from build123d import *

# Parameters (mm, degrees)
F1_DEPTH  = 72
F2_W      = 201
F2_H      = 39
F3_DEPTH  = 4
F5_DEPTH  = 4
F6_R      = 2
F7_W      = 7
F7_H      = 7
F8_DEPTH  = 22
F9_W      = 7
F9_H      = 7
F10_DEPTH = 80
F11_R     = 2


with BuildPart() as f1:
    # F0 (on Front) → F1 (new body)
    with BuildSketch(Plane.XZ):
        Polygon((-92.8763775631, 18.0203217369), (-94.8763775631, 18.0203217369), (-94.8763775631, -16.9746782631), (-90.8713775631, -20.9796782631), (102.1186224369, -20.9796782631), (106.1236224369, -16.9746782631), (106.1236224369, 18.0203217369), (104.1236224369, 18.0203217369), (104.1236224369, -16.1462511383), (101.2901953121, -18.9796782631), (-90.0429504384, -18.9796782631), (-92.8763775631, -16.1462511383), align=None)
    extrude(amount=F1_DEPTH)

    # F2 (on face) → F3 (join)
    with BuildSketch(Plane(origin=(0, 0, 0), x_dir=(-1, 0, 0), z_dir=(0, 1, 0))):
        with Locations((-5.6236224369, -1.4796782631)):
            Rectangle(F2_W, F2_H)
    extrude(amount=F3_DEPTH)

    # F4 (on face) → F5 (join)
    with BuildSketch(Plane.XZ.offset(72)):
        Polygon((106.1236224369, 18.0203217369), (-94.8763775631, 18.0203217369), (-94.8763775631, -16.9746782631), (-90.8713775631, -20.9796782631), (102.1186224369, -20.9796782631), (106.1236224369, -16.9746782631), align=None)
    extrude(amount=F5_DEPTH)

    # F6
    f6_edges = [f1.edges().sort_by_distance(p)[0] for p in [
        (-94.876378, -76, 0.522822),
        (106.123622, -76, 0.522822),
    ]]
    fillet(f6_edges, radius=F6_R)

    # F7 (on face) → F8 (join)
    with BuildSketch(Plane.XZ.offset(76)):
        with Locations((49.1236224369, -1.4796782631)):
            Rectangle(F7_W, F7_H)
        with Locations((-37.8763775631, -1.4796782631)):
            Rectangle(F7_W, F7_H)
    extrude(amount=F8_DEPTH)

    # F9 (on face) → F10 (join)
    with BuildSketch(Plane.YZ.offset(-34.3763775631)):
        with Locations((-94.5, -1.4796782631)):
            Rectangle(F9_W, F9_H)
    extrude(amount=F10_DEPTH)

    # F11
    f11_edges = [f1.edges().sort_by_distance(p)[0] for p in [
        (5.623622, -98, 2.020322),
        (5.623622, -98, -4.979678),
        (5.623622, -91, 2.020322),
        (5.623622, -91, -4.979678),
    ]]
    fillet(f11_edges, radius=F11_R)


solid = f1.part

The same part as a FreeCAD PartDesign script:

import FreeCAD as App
import Part
import Sketcher
from FreeCAD import Vector
Q = App.Units.Quantity


def edges_at(feature, points):
    """Names of the edges that pass closest to the given points."""
    edges = feature.Shape.Edges
    near = lambda p: min(range(len(edges)), key=lambda i: edges[i].distToShape(Part.Vertex(*p))[0])
    return sorted({f"Edge{near(p) + 1}" for p in points})

doc = App.newDocument("Part")
body = doc.addObject("PartDesign::Body", "Body")

sketch1 = body.newObject("Sketcher::SketchObject", "Sketch")
sketch1.AttachmentSupport = (doc.getObject("XZ_Plane"), [""])
sketch1.MapMode = "FlatFace"
sketch1.addGeometry([
    Part.LineSegment(Vector(-92.9, 18, 0), Vector(-94.9, 18, 0)),
    Part.LineSegment(Vector(-94.9, 18, 0), Vector(-94.9, -17, 0)),
    Part.LineSegment(Vector(-94.9, -17, 0), Vector(-90.9, -21, 0)),
    Part.LineSegment(Vector(-90.9, -21, 0), Vector(102.1, -21, 0)),
    Part.LineSegment(Vector(102.1, -21, 0), Vector(106.1, -17, 0)),
    Part.LineSegment(Vector(106.1, -17, 0), Vector(106.1, 18, 0)),
    Part.LineSegment(Vector(106.1, 18, 0), Vector(104.1, 18, 0)),
    Part.LineSegment(Vector(104.1, 18, 0), Vector(104.1, -16.1, 0)),
    Part.LineSegment(Vector(104.1, -16.1, 0), Vector(101.3, -19, 0)),
    Part.LineSegment(Vector(101.3, -19, 0), Vector(-90, -19, 0)),
    Part.LineSegment(Vector(-90, -19, 0), Vector(-92.9, -16.1, 0)),
    Part.LineSegment(Vector(-92.9, -16.1, 0), Vector(-92.9, 18, 0)),
], False)
sketch1.addConstraint([
    Sketcher.Constraint("Coincident", 0, 2, 1, 1),
    Sketcher.Constraint("Coincident", 1, 2, 2, 1),
    Sketcher.Constraint("Coincident", 2, 2, 3, 1),
    Sketcher.Constraint("Coincident", 3, 2, 4, 1),
    Sketcher.Constraint("Coincident", 4, 2, 5, 1),
    Sketcher.Constraint("Coincident", 5, 2, 6, 1),
    Sketcher.Constraint("Coincident", 6, 2, 7, 1),
    Sketcher.Constraint("Coincident", 7, 2, 8, 1),
    Sketcher.Constraint("Coincident", 8, 2, 9, 1),
    Sketcher.Constraint("Coincident", 9, 2, 10, 1),
    Sketcher.Constraint("Coincident", 10, 2, 11, 1),
    Sketcher.Constraint("Coincident", 11, 2, 0, 1),
    Sketcher.Constraint("Horizontal", 0),
    Sketcher.Constraint("Vertical", 1),
    Sketcher.Constraint("Horizontal", 3),
    Sketcher.Constraint("Vertical", 5),
    Sketcher.Constraint("Horizontal", 6),
    Sketcher.Constraint("Vertical", 7),
    Sketcher.Constraint("Horizontal", 9),
    Sketcher.Constraint("Vertical", 11),
    Sketcher.Constraint("Perpendicular", 2, 4),
    Sketcher.Constraint("Parallel", 4, 8),
    Sketcher.Constraint("Perpendicular", 8, 10),
    Sketcher.Constraint("Horizontal", 1, 2, 4, 2),
    Sketcher.Constraint("Horizontal", 0, 2, 5, 2),
    Sketcher.Constraint("Horizontal", 7, 2, 10, 2),
    Sketcher.Constraint("Equal", 0, 6),
    Sketcher.Constraint("Equal", 2, 4),
    Sketcher.Constraint("DistanceX", 0, 2, 0, 1, Q("2 mm")),
    Sketcher.Constraint("DistanceY", 2, 2, 0, 2, Q("39 mm")),
    Sketcher.Constraint("DistanceX", 1, 2, 4, 2, Q("201 mm")),
    Sketcher.Constraint("DistanceY", 3, 2, 8, 2, Q("2 mm")),
    Sketcher.Constraint("DistanceX", 3, 1, 3, 2, Q("192.99 mm")),
    Sketcher.Constraint("Distance", 8, Q("4.007071 mm")),
    Sketcher.Constraint("DistanceY", -1, 1, 0, 2, Q("18.020322 mm")),
    Sketcher.Constraint("DistanceX", 9, 2, -1, 1, Q("90.04295 mm")),
])
pad1 = body.newObject("PartDesign::Pad", "Pad")
pad1.Profile = sketch1
pad1.Length = 72

sketch2 = body.newObject("Sketcher::SketchObject", "Sketch001")
sketch2.AttachmentSupport = (doc.getObject("XZ_Plane"), [""])
sketch2.MapMode = "FlatFace"
sketch2.addGeometry([
    Part.LineSegment(Vector(106, 18, 0), Vector(106, -21, 0)),
    Part.LineSegment(Vector(106, -21, 0), Vector(-95, -21, 0)),
    Part.LineSegment(Vector(-95, -21, 0), Vector(-95, 18, 0)),
    Part.LineSegment(Vector(-95, 18, 0), Vector(106, 18, 0)),
], False)
sketch2.addConstraint([
    Sketcher.Constraint("Coincident", 0, 2, 1, 1),
    Sketcher.Constraint("Coincident", 1, 2, 2, 1),
    Sketcher.Constraint("Coincident", 2, 2, 3, 1),
    Sketcher.Constraint("Coincident", 3, 2, 0, 1),
    Sketcher.Constraint("Vertical", 0),
    Sketcher.Constraint("Horizontal", 1),
    Sketcher.Constraint("Vertical", 2),
    Sketcher.Constraint("Horizontal", 3),
    Sketcher.Constraint("DistanceX", 1, 2, 1, 1, Q("201 mm")),
    Sketcher.Constraint("DistanceY", 0, 2, 0, 1, Q("39 mm")),
    Sketcher.Constraint("DistanceY", 0, 2, -1, 1, Q("20.979678 mm")),
    Sketcher.Constraint("DistanceX", -1, 1, 0, 2, Q("106.123622 mm")),
])
pad2 = body.newObject("PartDesign::Pad", "Pad001")
pad2.Profile = sketch2
pad2.Length = 4
pad2.Reversed = True

sketch3 = body.newObject("Sketcher::SketchObject", "Sketch002")
sketch3.AttachmentSupport = (doc.getObject("XZ_Plane"), [""])
sketch3.MapMode = "FlatFace"
sketch3.AttachmentOffset = App.Placement(Vector(0, 0, 72), App.Rotation())
sketch3.addGeometry([
    Part.LineSegment(Vector(106, 18, 0), Vector(-95, 18, 0)),
    Part.LineSegment(Vector(-95, 18, 0), Vector(-95, -17, 0)),
    Part.LineSegment(Vector(-95, -17, 0), Vector(-91, -21, 0)),
    Part.LineSegment(Vector(-91, -21, 0), Vector(102, -21, 0)),
    Part.LineSegment(Vector(102, -21, 0), Vector(106, -17, 0)),
    Part.LineSegment(Vector(106, -17, 0), Vector(106, 18, 0)),
], False)
sketch3.addConstraint([
    Sketcher.Constraint("Coincident", 0, 2, 1, 1),
    Sketcher.Constraint("Coincident", 1, 2, 2, 1),
    Sketcher.Constraint("Coincident", 2, 2, 3, 1),
    Sketcher.Constraint("Coincident", 3, 2, 4, 1),
    Sketcher.Constraint("Coincident", 4, 2, 5, 1),
    Sketcher.Constraint("Coincident", 5, 2, 0, 1),
    Sketcher.Constraint("Horizontal", 0),
    Sketcher.Constraint("Vertical", 1),
    Sketcher.Constraint("Horizontal", 3),
    Sketcher.Constraint("Vertical", 5),
    Sketcher.Constraint("Perpendicular", 2, 4),
    Sketcher.Constraint("Horizontal", 1, 2, 4, 2),
    Sketcher.Constraint("Equal", 2, 4),
    Sketcher.Constraint("DistanceX", 0, 2, 0, 1, Q("201 mm")),
    Sketcher.Constraint("DistanceY", 2, 2, 0, 2, Q("39 mm")),
    Sketcher.Constraint("DistanceX", 3, 1, 3, 2, Q("192.99 mm")),
    Sketcher.Constraint("DistanceY", -1, 1, 0, 2, Q("18.020322 mm")),
    Sketcher.Constraint("DistanceX", 0, 2, -1, 1, Q("94.876378 mm")),
])
pad3 = body.newObject("PartDesign::Pad", "Pad002")
pad3.Profile = sketch3
pad3.Length = 4
doc.recompute()

fillet = body.newObject("PartDesign::Fillet", "Fillet")
fillet.Base = (pad3, edges_at(pad3, [(-94.876, -76, 0.523), (106.124, -76, 0.523)]))
fillet.Radius = 2

sketch4 = body.newObject("Sketcher::SketchObject", "Sketch003")
sketch4.AttachmentSupport = (doc.getObject("XZ_Plane"), [""])
sketch4.MapMode = "FlatFace"
sketch4.AttachmentOffset = App.Placement(Vector(0, 0, 76), App.Rotation())
sketch4.addGeometry([
    Part.LineSegment(Vector(46, 2, 0), Vector(46, -5, 0)),
    Part.LineSegment(Vector(46, -5, 0), Vector(53, -5, 0)),
    Part.LineSegment(Vector(53, -5, 0), Vector(53, 2, 0)),
    Part.LineSegment(Vector(53, 2, 0), Vector(46, 2, 0)),
    Part.LineSegment(Vector(-41, 2, 0), Vector(-41, -5, 0)),
    Part.LineSegment(Vector(-41, -5, 0), Vector(-34, -5, 0)),
    Part.LineSegment(Vector(-34, -5, 0), Vector(-34, 2, 0)),
    Part.LineSegment(Vector(-34, 2, 0), Vector(-41, 2, 0)),
], False)
sketch4.addConstraint([
    Sketcher.Constraint("Coincident", 0, 2, 1, 1),
    Sketcher.Constraint("Coincident", 1, 2, 2, 1),
    Sketcher.Constraint("Coincident", 2, 2, 3, 1),
    Sketcher.Constraint("Coincident", 3, 2, 0, 1),
    Sketcher.Constraint("Coincident", 4, 2, 5, 1),
    Sketcher.Constraint("Coincident", 5, 2, 6, 1),
    Sketcher.Constraint("Coincident", 6, 2, 7, 1),
    Sketcher.Constraint("Coincident", 7, 2, 4, 1),
    Sketcher.Constraint("Vertical", 0),
    Sketcher.Constraint("Horizontal", 1),
    Sketcher.Constraint("Vertical", 2),
    Sketcher.Constraint("Horizontal", 3),
    Sketcher.Constraint("Vertical", 4),
    Sketcher.Constraint("Horizontal", 5),
    Sketcher.Constraint("Vertical", 6),
    Sketcher.Constraint("Horizontal", 7),
    Sketcher.Constraint("Horizontal", 1, 2, 4, 2),
    Sketcher.Constraint("Horizontal", 3, 2, 6, 2),
    Sketcher.Constraint("Equal", 3, 5),
    Sketcher.Constraint("Equal", 7, 0),
    Sketcher.Constraint("DistanceX", 1, 1, 1, 2, Q("7 mm")),
    Sketcher.Constraint("DistanceX", 4, 2, 0, 2, Q("87 mm")),
    Sketcher.Constraint("DistanceY", 0, 2, -1, 1, Q("4.979678 mm")),
    Sketcher.Constraint("DistanceX", -1, 1, 0, 2, Q("45.623622 mm")),
])
pad4 = body.newObject("PartDesign::Pad", "Pad003")
pad4.Profile = sketch4
pad4.Length = 22

sketch5 = body.newObject("Sketcher::SketchObject", "Sketch004")
sketch5.AttachmentSupport = (doc.getObject("YZ_Plane"), [""])
sketch5.MapMode = "FlatFace"
sketch5.AttachmentOffset = App.Placement(Vector(0, 0, -34.376378), App.Rotation())
sketch5.addGeometry([
    Part.LineSegment(Vector(-98, 2, 0), Vector(-98, -5, 0)),
    Part.LineSegment(Vector(-98, -5, 0), Vector(-91, -5, 0)),
    Part.LineSegment(Vector(-91, -5, 0), Vector(-91, 2, 0)),
    Part.LineSegment(Vector(-91, 2, 0), Vector(-98, 2, 0)),
], False)
sketch5.addConstraint([
    Sketcher.Constraint("Coincident", 0, 2, 1, 1),
    Sketcher.Constraint("Coincident", 1, 2, 2, 1),
    Sketcher.Constraint("Coincident", 2, 2, 3, 1),
    Sketcher.Constraint("Coincident", 3, 2, 0, 1),
    Sketcher.Constraint("Vertical", 0),
    Sketcher.Constraint("Horizontal", 1),
    Sketcher.Constraint("Vertical", 2),
    Sketcher.Constraint("Horizontal", 3),
    Sketcher.Constraint("Equal", 3, 0),
    Sketcher.Constraint("DistanceX", 1, 1, 1, 2, Q("7 mm")),
    Sketcher.Constraint("DistanceX", 0, 2, -1, 1, Q("98 mm")),
    Sketcher.Constraint("DistanceY", 0, 2, -1, 1, Q("4.979678 mm")),
])
pad5 = body.newObject("PartDesign::Pad", "Pad004")
pad5.Profile = sketch5
pad5.Length = 80
doc.recompute()

fillet2 = body.newObject("PartDesign::Fillet", "Fillet001")
fillet2.Base = (pad5, edges_at(pad5, [
    (5.624, -98, 2.02),
    (5.624, -98, -4.98),
    (5.624, -91, 2.02),
    (5.624, -91, -4.98),
]))
fillet2.Radius = 2

doc.recompute()
